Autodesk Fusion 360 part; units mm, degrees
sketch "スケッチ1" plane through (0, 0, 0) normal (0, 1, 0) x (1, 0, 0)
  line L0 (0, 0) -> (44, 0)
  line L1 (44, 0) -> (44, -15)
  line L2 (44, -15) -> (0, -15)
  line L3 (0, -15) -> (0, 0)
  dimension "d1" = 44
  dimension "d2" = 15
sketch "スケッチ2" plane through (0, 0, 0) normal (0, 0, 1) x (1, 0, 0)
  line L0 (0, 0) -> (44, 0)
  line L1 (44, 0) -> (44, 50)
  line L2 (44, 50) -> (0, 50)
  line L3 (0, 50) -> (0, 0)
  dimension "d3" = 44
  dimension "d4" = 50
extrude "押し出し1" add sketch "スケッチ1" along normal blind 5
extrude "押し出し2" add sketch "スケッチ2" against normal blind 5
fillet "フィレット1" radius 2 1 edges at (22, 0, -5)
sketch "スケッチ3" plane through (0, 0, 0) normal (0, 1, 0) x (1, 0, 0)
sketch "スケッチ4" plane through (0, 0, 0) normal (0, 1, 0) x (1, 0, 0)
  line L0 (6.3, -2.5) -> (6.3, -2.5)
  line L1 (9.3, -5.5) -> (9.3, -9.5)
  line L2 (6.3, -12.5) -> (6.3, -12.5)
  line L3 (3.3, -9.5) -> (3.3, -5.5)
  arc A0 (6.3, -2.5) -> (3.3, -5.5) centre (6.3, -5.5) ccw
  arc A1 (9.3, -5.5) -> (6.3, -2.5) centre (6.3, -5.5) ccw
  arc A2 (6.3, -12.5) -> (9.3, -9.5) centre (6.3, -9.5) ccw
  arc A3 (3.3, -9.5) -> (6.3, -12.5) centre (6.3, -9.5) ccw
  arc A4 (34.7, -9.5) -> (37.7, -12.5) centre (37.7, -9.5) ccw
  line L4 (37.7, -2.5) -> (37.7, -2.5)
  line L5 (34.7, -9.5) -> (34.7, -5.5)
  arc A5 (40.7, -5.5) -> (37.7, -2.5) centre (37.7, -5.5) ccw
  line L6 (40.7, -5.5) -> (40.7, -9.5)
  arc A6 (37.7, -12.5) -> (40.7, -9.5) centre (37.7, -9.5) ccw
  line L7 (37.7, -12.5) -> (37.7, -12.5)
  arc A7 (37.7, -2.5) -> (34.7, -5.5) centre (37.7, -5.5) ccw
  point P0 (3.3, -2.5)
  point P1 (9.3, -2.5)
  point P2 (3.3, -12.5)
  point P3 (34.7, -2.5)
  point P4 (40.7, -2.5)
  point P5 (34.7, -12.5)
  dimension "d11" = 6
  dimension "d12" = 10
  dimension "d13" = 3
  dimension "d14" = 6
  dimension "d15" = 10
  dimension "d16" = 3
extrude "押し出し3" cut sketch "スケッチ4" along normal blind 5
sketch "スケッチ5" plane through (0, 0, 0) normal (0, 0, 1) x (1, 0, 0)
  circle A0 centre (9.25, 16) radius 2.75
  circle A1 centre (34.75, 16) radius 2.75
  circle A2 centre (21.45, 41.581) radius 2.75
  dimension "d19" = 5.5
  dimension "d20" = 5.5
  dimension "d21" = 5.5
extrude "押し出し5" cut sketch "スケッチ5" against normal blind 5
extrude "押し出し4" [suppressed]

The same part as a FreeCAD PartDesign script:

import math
import FreeCAD as App
import Part
import Sketcher
Q = App.Units.Quantity


def edges_at(feature, points):
    """Names of the edges that pass closest to the given points."""
    edges = feature.Shape.Edges
    near = lambda p: min(range(len(edges)), key=lambda i: edges[i].distToShape(Part.Vertex(*p))[0])
    return sorted({f"Edge{near(p) + 1}" for p in points})

doc = App.newDocument("Part")
body = doc.addObject("PartDesign::Body", "Body")

sketch1 = body.newObject("Sketcher::SketchObject", "Sketch")
sketch1.AttachmentSupport = (doc.getObject("XZ_Plane"), [""])
sketch1.MapMode = "FlatFace"
sketch1.addGeometry([
    Part.LineSegment(App.Vector(44, 0, 0), App.Vector(0, 0, 0)),
    Part.LineSegment(App.Vector(0, 0, 0), App.Vector(0, 15, 0)),
    Part.LineSegment(App.Vector(0, 15, 0), App.Vector(44, 15, 0)),
    Part.LineSegment(App.Vector(44, 15, 0), App.Vector(44, 0, 0)),
], False)
sketch1.addConstraint([
    Sketcher.Constraint("Coincident", 0, 2, 1, 1),
    Sketcher.Constraint("Coincident", 1, 2, 2, 1),
    Sketcher.Constraint("Coincident", 2, 2, 3, 1),
    Sketcher.Constraint("Coincident", 3, 2, 0, 1),
    Sketcher.Constraint("Horizontal", 0),
    Sketcher.Constraint("Vertical", 1),
    Sketcher.Constraint("Horizontal", 2),
    Sketcher.Constraint("Vertical", 3),
    Sketcher.Constraint("Coincident", 0, 2, -1, 1),
    Sketcher.Constraint("DistanceX", 0, 2, 0, 1, Q("44 mm")),
    Sketcher.Constraint("DistanceY", 1, 1, 1, 2, Q("15 mm")),
])
pad1 = body.newObject("PartDesign::Pad", "Pad")
pad1.Profile = sketch1
pad1.Length = 5
pad1.Reversed = True

sketch2 = body.newObject("Sketcher::SketchObject", "Sketch001")
sketch2.AttachmentSupport = (doc.getObject("XY_Plane"), [""])
sketch2.MapMode = "FlatFace"
sketch2.addGeometry([
    Part.LineSegment(App.Vector(0, 50, 0), App.Vector(0, 0, 0)),
    Part.LineSegment(App.Vector(0, 0, 0), App.Vector(44, 0, 0)),
    Part.LineSegment(App.Vector(44, 0, 0), App.Vector(44, 50, 0)),
    Part.LineSegment(App.Vector(44, 50, 0), App.Vector(0, 50, 0)),
], False)
sketch2.addConstraint([
    Sketcher.Constraint("Coincident", 0, 2, 1, 1),
    Sketcher.Constraint("Coincident", 1, 2, 2, 1),
    Sketcher.Constraint("Coincident", 2, 2, 3, 1),
    Sketcher.Constraint("Coincident", 3, 2, 0, 1),
    Sketcher.Constraint("Vertical", 0),
    Sketcher.Constraint("Horizontal", 1),
    Sketcher.Constraint("Vertical", 2),
    Sketcher.Constraint("Horizontal", 3),
    Sketcher.Constraint("Coincident", 0, 2, -1, 1),
    Sketcher.Constraint("DistanceX", 1, 1, 1, 2, Q("44 mm")),
    Sketcher.Constraint("DistanceY", 0, 2, 0, 1, Q("50 mm")),
])
pad2 = body.newObject("PartDesign::Pad", "Pad001")
pad2.Profile = sketch2
pad2.Length = 5
pad2.Reversed = True
doc.recompute()

fillet = body.newObject("PartDesign::Fillet", "Fillet")
fillet.Base = (pad2, edges_at(pad2, [(22, 0, -5)]))
fillet.Radius = 2

sketch3 = body.newObject("Sketcher::SketchObject", "Sketch002")
sketch3.AttachmentSupport = (doc.getObject("XZ_Plane"), [""])
sketch3.MapMode = "FlatFace"
sketch3.addGeometry([
    Part.LineSegment(App.Vector(9.3, 9.5, 0), App.Vector(9.3, 5.5, 0)),
    Part.ArcOfCircle(Part.Circle(App.Vector(6.3, 5.5, 0), App.Vector(0, 0, 1), 3), math.radians(180), math.radians(360)),
    Part.LineSegment(App.Vector(3.3, 5.5, 0), App.Vector(3.3, 9.5, 0)),
    Part.ArcOfCircle(Part.Circle(App.Vector(6.3, 9.5, 0), App.Vector(0, 0, 1), 3), math.radians(0), math.radians(180)),
    Part.LineSegment(App.Vector(34.7, 5.5, 0), App.Vector(34.7, 9.5, 0)),
    Part.ArcOfCircle(Part.Circle(App.Vector(37.7, 9.5, 0), App.Vector(0, 0, 1), 3), math.radians(0), math.radians(180)),
    Part.LineSegment(App.Vector(40.7, 9.5, 0), App.Vector(40.7, 5.5, 0)),
    Part.ArcOfCircle(Part.Circle(App.Vector(37.7, 5.5, 0), App.Vector(0, 0, 1), 3), math.radians(180), math.radians(360)),
], False)
sketch3.addConstraint([
    Sketcher.Constraint("Tangent", 0, 2, 1, 2),
    Sketcher.Constraint("Tangent", 1, 1, 2, 1),
    Sketcher.Constraint("Tangent", 2, 2, 3, 2),
    Sketcher.Constraint("Tangent", 3, 1, 0, 1),
    Sketcher.Constraint("Tangent", 4, 2, 5, 2),
    Sketcher.Constraint("Tangent", 5, 1, 6, 1),
    Sketcher.Constraint("Tangent", 6, 2, 7, 2),
    Sketcher.Constraint("Tangent", 7, 1, 4, 1),
    Sketcher.Constraint("Vertical", 0),
    Sketcher.Constraint("Vertical", 2),
    Sketcher.Constraint("Vertical", 4),
    Sketcher.Constraint("Vertical", 6),
    Sketcher.Constraint("Equal", 3, 5),
    Sketcher.Constraint("Horizontal", 3, 3, 5, 3),
    Sketcher.Constraint("Horizontal", 1, 3, 7, 3),
    Sketcher.Constraint("Radius", 1, Q("3 mm")),
    Sketcher.Constraint("DistanceY", 0, 2, 0, 1, Q("4 mm")),
    Sketcher.Constraint("DistanceX", -1, 1, 1, 3, Q("6.3 mm")),
    Sketcher.Constraint("DistanceY", -1, 1, 1, 3, Q("5.5 mm")),
    Sketcher.Constraint("DistanceX", -1, 1, 5, 3, Q("37.7 mm")),
])
pocket1 = body.newObject("PartDesign::Pocket", "Pocket")
pocket1.Profile = sketch3
pocket1.Length = 5

sketch4 = body.newObject("Sketcher::SketchObject", "Sketch003")
sketch4.AttachmentSupport = (doc.getObject("XY_Plane"), [""])
sketch4.MapMode = "FlatFace"
sketch4.addGeometry([
    Part.Circle(App.Vector(9.2, 16, 0), App.Vector(0, 0, 1), 2.8),
    Part.Circle(App.Vector(34.8, 16, 0), App.Vector(0, 0, 1), 2.8),
    Part.Circle(App.Vector(21.4, 41.6, 0), App.Vector(0, 0, 1), 2.8),
], False)
sketch4.addConstraint([
    Sketcher.Constraint("Equal", 0, 1),
    Sketcher.Constraint("Equal", 1, 2),
    Sketcher.Constraint("Horizontal", 0, 3, 1, 3),
    Sketcher.Constraint("Diameter", 0, Q("5.5 mm")),
    Sketcher.Constraint("DistanceY", -1, 1, 0, 3, Q("16 mm")),
    Sketcher.Constraint("DistanceX", 0, 3, 1, 3, Q("25.5 mm")),
    Sketcher.Constraint("DistanceX", 0, 3, 2, 3, Q("12.2 mm")),
    Sketcher.Constraint("DistanceX", -1, 1, 0, 3, Q("9.25 mm")),
    Sketcher.Constraint("DistanceY", -1, 1, 2, 3, Q("41.581 mm")),
])
pocket2 = body.newObject("PartDesign::Pocket", "Pocket001")
pocket2.Profile = sketch4
pocket2.Length = 5

doc.recompute()
